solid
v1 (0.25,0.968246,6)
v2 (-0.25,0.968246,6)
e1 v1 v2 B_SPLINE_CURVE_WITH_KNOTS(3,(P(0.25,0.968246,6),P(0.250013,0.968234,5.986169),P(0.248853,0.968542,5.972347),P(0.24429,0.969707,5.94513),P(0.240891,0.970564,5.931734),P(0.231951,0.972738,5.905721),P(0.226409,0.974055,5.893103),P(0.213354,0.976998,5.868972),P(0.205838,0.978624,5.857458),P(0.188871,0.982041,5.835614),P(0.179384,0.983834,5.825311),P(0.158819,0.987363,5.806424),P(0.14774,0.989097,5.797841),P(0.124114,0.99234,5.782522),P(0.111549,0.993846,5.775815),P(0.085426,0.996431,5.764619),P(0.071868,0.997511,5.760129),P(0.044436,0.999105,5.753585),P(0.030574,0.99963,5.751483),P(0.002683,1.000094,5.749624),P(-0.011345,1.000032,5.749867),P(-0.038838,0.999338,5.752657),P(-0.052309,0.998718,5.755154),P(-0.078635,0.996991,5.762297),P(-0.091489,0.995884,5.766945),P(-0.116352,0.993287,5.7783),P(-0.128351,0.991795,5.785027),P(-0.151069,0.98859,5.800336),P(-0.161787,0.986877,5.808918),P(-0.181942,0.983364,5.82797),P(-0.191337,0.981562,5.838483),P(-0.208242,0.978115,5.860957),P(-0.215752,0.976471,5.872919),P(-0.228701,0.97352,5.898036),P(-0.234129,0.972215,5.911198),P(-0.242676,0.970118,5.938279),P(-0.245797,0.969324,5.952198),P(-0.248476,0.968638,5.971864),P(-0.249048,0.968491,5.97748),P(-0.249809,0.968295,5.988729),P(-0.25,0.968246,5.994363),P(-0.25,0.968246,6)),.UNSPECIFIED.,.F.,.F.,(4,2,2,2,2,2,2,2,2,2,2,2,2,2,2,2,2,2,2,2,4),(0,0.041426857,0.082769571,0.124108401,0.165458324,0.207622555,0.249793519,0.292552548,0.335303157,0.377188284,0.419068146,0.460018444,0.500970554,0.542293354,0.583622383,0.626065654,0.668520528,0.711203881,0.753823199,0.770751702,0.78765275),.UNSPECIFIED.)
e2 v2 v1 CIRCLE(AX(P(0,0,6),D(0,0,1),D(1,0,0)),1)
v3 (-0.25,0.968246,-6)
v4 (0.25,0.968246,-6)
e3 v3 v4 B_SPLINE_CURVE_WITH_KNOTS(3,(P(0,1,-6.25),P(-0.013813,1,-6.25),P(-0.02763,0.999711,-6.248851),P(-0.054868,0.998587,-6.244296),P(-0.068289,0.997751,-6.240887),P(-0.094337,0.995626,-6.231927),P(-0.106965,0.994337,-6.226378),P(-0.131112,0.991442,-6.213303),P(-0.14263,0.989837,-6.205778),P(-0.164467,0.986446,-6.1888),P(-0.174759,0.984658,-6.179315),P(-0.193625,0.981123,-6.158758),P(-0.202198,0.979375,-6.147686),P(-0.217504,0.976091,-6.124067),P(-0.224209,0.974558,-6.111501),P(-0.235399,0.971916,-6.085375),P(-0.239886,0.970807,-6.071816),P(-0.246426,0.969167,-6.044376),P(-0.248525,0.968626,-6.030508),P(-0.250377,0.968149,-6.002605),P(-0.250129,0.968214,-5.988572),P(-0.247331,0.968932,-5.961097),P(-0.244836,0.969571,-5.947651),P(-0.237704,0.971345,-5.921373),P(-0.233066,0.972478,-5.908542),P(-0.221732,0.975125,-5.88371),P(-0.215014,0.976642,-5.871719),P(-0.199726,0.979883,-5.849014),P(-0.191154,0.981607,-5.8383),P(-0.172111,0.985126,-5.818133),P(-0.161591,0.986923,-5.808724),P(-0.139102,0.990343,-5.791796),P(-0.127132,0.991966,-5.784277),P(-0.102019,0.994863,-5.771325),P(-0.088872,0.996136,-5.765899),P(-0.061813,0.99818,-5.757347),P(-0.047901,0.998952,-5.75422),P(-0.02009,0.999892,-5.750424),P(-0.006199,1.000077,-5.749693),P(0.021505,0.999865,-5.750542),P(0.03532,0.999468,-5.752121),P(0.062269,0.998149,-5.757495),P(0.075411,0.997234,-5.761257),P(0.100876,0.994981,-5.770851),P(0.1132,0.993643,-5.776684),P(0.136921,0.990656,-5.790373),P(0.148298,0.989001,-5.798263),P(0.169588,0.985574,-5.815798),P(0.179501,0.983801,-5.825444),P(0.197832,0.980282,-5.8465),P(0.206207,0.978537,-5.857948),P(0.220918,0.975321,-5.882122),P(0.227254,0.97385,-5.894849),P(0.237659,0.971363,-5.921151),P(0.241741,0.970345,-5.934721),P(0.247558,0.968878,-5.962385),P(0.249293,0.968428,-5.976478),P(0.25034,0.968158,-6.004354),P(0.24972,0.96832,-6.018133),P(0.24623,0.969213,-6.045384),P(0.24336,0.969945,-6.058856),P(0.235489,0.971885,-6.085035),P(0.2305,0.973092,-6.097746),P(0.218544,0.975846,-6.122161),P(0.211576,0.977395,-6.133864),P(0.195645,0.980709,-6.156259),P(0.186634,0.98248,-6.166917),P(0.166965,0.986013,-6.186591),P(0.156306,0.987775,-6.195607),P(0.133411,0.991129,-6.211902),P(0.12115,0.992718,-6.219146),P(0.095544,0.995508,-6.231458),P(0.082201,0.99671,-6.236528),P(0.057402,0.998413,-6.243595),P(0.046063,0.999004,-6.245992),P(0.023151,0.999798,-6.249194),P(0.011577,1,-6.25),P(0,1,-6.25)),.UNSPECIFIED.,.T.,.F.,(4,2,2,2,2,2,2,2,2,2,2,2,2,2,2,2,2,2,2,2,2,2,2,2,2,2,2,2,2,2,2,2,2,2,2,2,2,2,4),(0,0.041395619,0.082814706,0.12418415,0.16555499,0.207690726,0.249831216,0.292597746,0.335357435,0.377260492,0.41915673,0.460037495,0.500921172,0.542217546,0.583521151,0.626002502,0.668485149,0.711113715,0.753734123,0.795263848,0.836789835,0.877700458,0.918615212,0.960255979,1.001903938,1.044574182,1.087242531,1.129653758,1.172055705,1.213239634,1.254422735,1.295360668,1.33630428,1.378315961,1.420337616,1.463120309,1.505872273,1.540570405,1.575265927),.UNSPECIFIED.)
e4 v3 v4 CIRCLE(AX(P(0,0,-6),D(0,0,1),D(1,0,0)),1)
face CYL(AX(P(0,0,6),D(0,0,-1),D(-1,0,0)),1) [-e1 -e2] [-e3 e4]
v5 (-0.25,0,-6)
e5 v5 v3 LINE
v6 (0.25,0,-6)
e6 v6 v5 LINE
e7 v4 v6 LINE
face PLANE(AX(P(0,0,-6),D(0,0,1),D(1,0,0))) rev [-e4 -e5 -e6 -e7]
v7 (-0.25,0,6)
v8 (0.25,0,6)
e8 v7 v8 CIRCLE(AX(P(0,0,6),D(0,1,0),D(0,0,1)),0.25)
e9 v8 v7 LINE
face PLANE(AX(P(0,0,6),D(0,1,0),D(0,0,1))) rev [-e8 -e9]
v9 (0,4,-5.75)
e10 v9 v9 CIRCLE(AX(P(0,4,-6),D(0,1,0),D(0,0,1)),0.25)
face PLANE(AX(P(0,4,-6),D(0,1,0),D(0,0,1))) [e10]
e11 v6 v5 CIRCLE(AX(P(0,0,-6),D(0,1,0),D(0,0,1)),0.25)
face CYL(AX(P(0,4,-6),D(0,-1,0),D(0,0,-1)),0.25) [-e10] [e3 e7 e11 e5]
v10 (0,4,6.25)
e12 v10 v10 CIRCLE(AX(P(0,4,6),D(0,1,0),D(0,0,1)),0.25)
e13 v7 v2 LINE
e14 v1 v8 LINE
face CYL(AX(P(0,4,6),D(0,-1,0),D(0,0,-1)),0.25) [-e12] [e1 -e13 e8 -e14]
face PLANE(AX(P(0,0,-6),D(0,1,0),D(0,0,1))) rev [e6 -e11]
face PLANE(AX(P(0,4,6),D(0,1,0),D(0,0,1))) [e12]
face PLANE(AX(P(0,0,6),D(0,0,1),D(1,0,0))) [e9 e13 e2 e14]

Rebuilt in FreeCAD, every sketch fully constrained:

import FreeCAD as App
import Part
import Sketcher

V = App.Vector
Q = App.Units.Quantity

doc = App.newDocument("Part")
body = doc.addObject("PartDesign::Body", "Body")

# Sketch on XY plane
sketch1 = body.newObject("Sketcher::SketchObject", "Sketch")
sketch1.AttachmentSupport = (doc.getObject("XY_Plane"), [""])
sketch1.MapMode = "FlatFace"
sketch1.addGeometry(Part.Circle(V(0, 0, 0), V(0, 0, 1), 1), False)
sketch1.addConstraint([
    Sketcher.Constraint("Coincident", 0, 3, -1, 1),
    Sketcher.Constraint("Diameter", 0, Q("2 mm")),
])
pad1 = body.newObject("PartDesign::Pad", "Pad")
pad1.Profile = sketch1
pad1.Length = 12
pad1.Midplane = True

# Sketch on XZ plane
sketch2 = body.newObject("Sketcher::SketchObject", "Sketch001")
sketch2.AttachmentSupport = (doc.getObject("XZ_Plane"), [""])
sketch2.MapMode = "FlatFace"
sketch2.addGeometry([
    Part.Circle(V(0, 6, 0), V(0, 0, 1), 0.25),
    Part.Circle(V(0, -6, 0), V(0, 0, 1), 0.25),
], False)
sketch2.addConstraint([
    Sketcher.Constraint("Equal", 0, 1),
    Sketcher.Constraint("Symmetric", 0, 3, 1, 3, -1, 1),
    Sketcher.Constraint("PointOnObject", 0, 3, -2),
    Sketcher.Constraint("Diameter", 0, Q("0.5 mm")),
    Sketcher.Constraint("DistanceY", -1, 1, 0, 3, Q("6 mm")),
])
pad2 = body.newObject("PartDesign::Pad", "Pad001")
pad2.Profile = sketch2
pad2.Length = 4
pad2.Reversed = True

doc.recompute()
